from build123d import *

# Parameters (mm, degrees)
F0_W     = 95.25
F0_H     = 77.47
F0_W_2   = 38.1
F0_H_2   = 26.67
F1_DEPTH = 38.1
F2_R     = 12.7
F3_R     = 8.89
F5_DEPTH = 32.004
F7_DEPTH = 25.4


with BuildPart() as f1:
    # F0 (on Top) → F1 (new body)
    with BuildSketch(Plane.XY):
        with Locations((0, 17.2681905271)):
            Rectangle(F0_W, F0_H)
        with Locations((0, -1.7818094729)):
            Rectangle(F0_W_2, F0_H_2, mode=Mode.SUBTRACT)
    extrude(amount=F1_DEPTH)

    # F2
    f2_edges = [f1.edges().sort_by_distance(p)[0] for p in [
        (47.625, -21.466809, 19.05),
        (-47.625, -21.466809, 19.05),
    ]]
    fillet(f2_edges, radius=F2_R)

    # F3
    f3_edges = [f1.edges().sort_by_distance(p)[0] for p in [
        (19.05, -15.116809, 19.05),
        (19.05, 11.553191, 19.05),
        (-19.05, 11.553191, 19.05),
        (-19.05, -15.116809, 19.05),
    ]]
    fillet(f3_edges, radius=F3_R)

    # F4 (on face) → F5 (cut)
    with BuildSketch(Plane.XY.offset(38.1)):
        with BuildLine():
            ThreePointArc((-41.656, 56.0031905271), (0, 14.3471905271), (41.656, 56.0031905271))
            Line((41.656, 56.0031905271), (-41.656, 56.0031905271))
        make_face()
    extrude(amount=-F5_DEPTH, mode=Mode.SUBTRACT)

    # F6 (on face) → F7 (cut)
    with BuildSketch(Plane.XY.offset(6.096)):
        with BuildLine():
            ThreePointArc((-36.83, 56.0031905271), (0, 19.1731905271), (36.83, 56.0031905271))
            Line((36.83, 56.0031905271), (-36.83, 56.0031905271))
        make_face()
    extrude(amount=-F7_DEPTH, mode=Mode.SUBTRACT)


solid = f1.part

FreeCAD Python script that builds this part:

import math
import FreeCAD as App
import Part
import Sketcher
from FreeCAD import Vector
Q = App.Units.Quantity


def edges_at(feature, points):
    """Names of the edges that pass closest to the given points."""
    edges = feature.Shape.Edges
    near = lambda p: min(range(len(edges)), key=lambda i: edges[i].distToShape(Part.Vertex(*p))[0])
    return sorted({f"Edge{near(p) + 1}" for p in points})

doc = App.newDocument("Part")
params = doc.addObject("Spreadsheet::Sheet", "Params")
for row, (alias, value) in enumerate([
    ("sketch1_width", "1.5 in"),
    ("sketch1_width2", "3.75 in"),
    ("sketch1_height", "3.05 in"),
    ("sketch1_height2", "1.05 in"),
    ("pad1_length", "1.5 in"),
    ("fillet_radius", "0.5 in"),
    ("fillet2_radius", "0.35 in"),
    ("sketch2_radius", "1.64 in"),
    ("pocket1_length", "1.26 in"),
    ("sketch3_radius", "1.45 in"),
    ("pocket2_length", "1 in"),
], start=1):
    params.set(f"A{row}", alias)
    params.set(f"B{row}", "=" + value)
    params.setAlias(f"B{row}", alias)

body = doc.addObject("PartDesign::Body", "Body")

sketch1 = doc.addObject("Sketcher::SketchObject", "Sketch")
body.addObject(sketch1)
sketch1.AttachmentSupport = (doc.XY_Plane, [""])
sketch1.MapMode = "FlatFace"
sketch1.addGeometry([
    Part.LineSegment(Vector(-48, 56, 0), Vector(-48, -21, 0)),
    Part.LineSegment(Vector(-48, -21, 0), Vector(48, -21, 0)),
    Part.LineSegment(Vector(48, -21, 0), Vector(48, 56, 0)),
    Part.LineSegment(Vector(48, 56, 0), Vector(-48, 56, 0)),
    Part.LineSegment(Vector(19, -15, 0), Vector(-19, -15, 0)),
    Part.LineSegment(Vector(-19, -15, 0), Vector(-19, 12, 0)),
    Part.LineSegment(Vector(-19, 12, 0), Vector(19, 12, 0)),
    Part.LineSegment(Vector(19, 12, 0), Vector(19, -15, 0)),
], False)
sketch1.addConstraint([
    Sketcher.Constraint("Coincident", 0, 2, 1, 1),
    Sketcher.Constraint("Coincident", 1, 2, 2, 1),
    Sketcher.Constraint("Coincident", 2, 2, 3, 1),
    Sketcher.Constraint("Coincident", 3, 2, 0, 1),
    Sketcher.Constraint("Coincident", 4, 2, 5, 1),
    Sketcher.Constraint("Coincident", 5, 2, 6, 1),
    Sketcher.Constraint("Coincident", 6, 2, 7, 1),
    Sketcher.Constraint("Coincident", 7, 2, 4, 1),
    Sketcher.Constraint("Vertical", 0),
    Sketcher.Constraint("Horizontal", 1),
    Sketcher.Constraint("Vertical", 2),
    Sketcher.Constraint("Horizontal", 3),
    Sketcher.Constraint("Horizontal", 4),
    Sketcher.Constraint("Vertical", 5),
    Sketcher.Constraint("Horizontal", 6),
    Sketcher.Constraint("Vertical", 7),
    Sketcher.Constraint("DistanceX", 4, 2, 4, 1, Q("1.5 in")),
    Sketcher.Constraint("DistanceX", 1, 1, 1, 2, Q("3.75 in")),
    Sketcher.Constraint("DistanceY", 0, 2, 0, 1, Q("3.05 in")),
    Sketcher.Constraint("DistanceY", 5, 1, 5, 2, Q("1.05 in")),
    Sketcher.Constraint("DistanceY", 4, 2, 3, 2, Q("2.8 in")),
    Sketcher.Constraint("DistanceX", 4, 2, -1, 1, Q("0.75 in")),
    Sketcher.Constraint("DistanceX", 0, 2, -1, 1, Q("1.875 in")),
    Sketcher.Constraint("DistanceY", 0, 2, -1, 1, Q("21.466809 mm")),
])
sketch1.setExpression("Constraints[16]", "Params.sketch1_width")
sketch1.setExpression("Constraints[17]", "Params.sketch1_width2")
sketch1.setExpression("Constraints[18]", "Params.sketch1_height")
sketch1.setExpression("Constraints[19]", "Params.sketch1_height2")
pad1 = doc.addObject("PartDesign::Pad", "Pad")
body.addObject(pad1)
pad1.Profile = sketch1
pad1.setExpression("Length", "Params.pad1_length")
doc.recompute()

fillet = doc.addObject("PartDesign::Fillet", "Fillet")
body.addObject(fillet)
fillet.Base = (pad1, edges_at(pad1, [(47.625, -21.467, 19.05), (-47.625, -21.467, 19.05)]))
fillet.setExpression("Radius", "Params.fillet_radius")
doc.recompute()

fillet2 = doc.addObject("PartDesign::Fillet", "Fillet001")
body.addObject(fillet2)
fillet2.Base = (fillet, edges_at(fillet, [
    (19.05, -15.117, 19.05),
    (19.05, 11.553, 19.05),
    (-19.05, 11.553, 19.05),
    (-19.05, -15.117, 19.05),
]))
fillet2.setExpression("Radius", "Params.fillet2_radius")

sketch2 = doc.addObject("Sketcher::SketchObject", "Sketch001")
body.addObject(sketch2)
sketch2.AttachmentSupport = (doc.XY_Plane, [""])
sketch2.MapMode = "FlatFace"
sketch2.AttachmentOffset = App.Placement(Vector(0, 0, 1.5 * 25.4), App.Rotation())
sketch2.addGeometry([
    Part.ArcOfCircle(Part.Circle(Vector(0, 56, 0), Vector(0, 0, 1), 42), math.radians(180), math.radians(360)),
    Part.LineSegment(Vector(42, 56, 0), Vector(-42, 56, 0)),
], False)
sketch2.addConstraint([
    Sketcher.Constraint("Coincident", 0, 1, 1, 2),
    Sketcher.Constraint("Coincident", 1, 1, 0, 2),
    Sketcher.Constraint("Horizontal", 1),
    Sketcher.Constraint("PointOnObject", 0, 3, -2),
    Sketcher.Constraint("Radius", 0, Q("1.64 in")),
    Sketcher.Constraint("DistanceY", -1, 1, 0, 3, Q("56.003191 mm")),
    Sketcher.Constraint("DistanceY", -1, 1, 0, 1, Q("56.003191 mm")),
])
sketch2.setExpression("Constraints[4]", "Params.sketch2_radius")
pocket1 = doc.addObject("PartDesign::Pocket", "Pocket")
body.addObject(pocket1)
pocket1.Profile = sketch2
pocket1.setExpression("Length", "Params.pocket1_length")

sketch3 = doc.addObject("Sketcher::SketchObject", "Sketch002")
body.addObject(sketch3)
sketch3.AttachmentSupport = (doc.XY_Plane, [""])
sketch3.MapMode = "FlatFace"
sketch3.AttachmentOffset = App.Placement(Vector(0, 0, 0.24 * 25.4), App.Rotation())
sketch3.addGeometry([
    Part.ArcOfCircle(Part.Circle(Vector(0, 56, 0), Vector(0, 0, 1), 37), math.radians(180), math.radians(360)),
    Part.LineSegment(Vector(37, 56, 0), Vector(-37, 56, 0)),
], False)
sketch3.addConstraint([
    Sketcher.Constraint("Coincident", 0, 1, 1, 2),
    Sketcher.Constraint("Coincident", 1, 1, 0, 2),
    Sketcher.Constraint("Horizontal", 1),
    Sketcher.Constraint("PointOnObject", 0, 3, -2),
    Sketcher.Constraint("Radius", 0, Q("1.45 in")),
    Sketcher.Constraint("DistanceY", -1, 1, 0, 3, Q("56.003191 mm")),
    Sketcher.Constraint("DistanceY", -1, 1, 0, 1, Q("56.003191 mm")),
])
sketch3.setExpression("Constraints[4]", "Params.sketch3_radius")
pocket2 = doc.addObject("PartDesign::Pocket", "Pocket001")
body.addObject(pocket2)
pocket2.Profile = sketch3
pocket2.setExpression("Length", "Params.pocket2_length")

doc.recompute()
